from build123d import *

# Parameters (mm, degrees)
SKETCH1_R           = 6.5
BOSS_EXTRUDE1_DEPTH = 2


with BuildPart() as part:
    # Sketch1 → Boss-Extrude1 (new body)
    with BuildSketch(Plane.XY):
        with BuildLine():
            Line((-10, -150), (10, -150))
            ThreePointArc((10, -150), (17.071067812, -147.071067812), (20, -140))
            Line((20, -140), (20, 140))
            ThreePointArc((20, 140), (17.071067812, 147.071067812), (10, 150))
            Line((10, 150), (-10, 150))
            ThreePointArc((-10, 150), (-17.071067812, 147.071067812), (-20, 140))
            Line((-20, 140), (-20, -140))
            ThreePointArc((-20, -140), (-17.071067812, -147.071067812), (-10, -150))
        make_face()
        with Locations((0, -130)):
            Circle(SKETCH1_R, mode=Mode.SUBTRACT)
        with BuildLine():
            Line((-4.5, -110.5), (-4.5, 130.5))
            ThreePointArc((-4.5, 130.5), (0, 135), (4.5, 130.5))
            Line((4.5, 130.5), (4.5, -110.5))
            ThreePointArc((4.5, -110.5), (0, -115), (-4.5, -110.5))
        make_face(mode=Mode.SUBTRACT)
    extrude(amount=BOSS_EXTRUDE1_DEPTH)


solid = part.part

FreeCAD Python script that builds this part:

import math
import FreeCAD as App
import Part
import Sketcher
Q = App.Units.Quantity

doc = App.newDocument("Part")
body = doc.addObject("PartDesign::Body", "Body")

# Sketch on XY plane
sketch1 = body.newObject("Sketcher::SketchObject", "Sketch")
sketch1.AttachmentSupport = (doc.getObject("XY_Plane"), [""])
sketch1.MapMode = "FlatFace"
sketch1.addGeometry(Part.LineSegment(App.Vector(-10, -150, 0), App.Vector(10, -150, 0)), False)
sketch1.addGeometry(Part.ArcOfCircle(Part.Circle(App.Vector(10, -140, 0), App.Vector(0, 0, 1), 10), math.radians(-90), math.radians(0)), False)
sketch1.addGeometry(Part.LineSegment(App.Vector(20, -140, 0), App.Vector(20, 140, 0)), False)
sketch1.addGeometry(Part.ArcOfCircle(Part.Circle(App.Vector(10, 140, 0), App.Vector(0, 0, 1), 10), math.radians(0), math.radians(90)), False)
sketch1.addGeometry(Part.LineSegment(App.Vector(10, 150, 0), App.Vector(-10, 150, 0)), False)
sketch1.addGeometry(Part.ArcOfCircle(Part.Circle(App.Vector(-10, 140, 0), App.Vector(0, 0, 1), 10), math.radians(90), math.radians(180)), False)
sketch1.addGeometry(Part.LineSegment(App.Vector(-20, 140, 0), App.Vector(-20, -140, 0)), False)
sketch1.addGeometry(Part.ArcOfCircle(Part.Circle(App.Vector(-10, -140, 0), App.Vector(0, 0, 1), 10), math.radians(180), math.radians(270)), False)
sketch1.addGeometry(Part.Circle(App.Vector(0, -130, 0), App.Vector(0, 0, 1), 6.5), False)
sketch1.addGeometry(Part.ArcOfCircle(Part.Circle(App.Vector(0, -110.5, 0), App.Vector(0, 0, 1), 4.5), math.radians(180), math.radians(360)), False)
sketch1.addGeometry(Part.LineSegment(App.Vector(-4.5, -110.5, 0), App.Vector(-4.5, 130.5, 0)), False)
sketch1.addGeometry(Part.ArcOfCircle(Part.Circle(App.Vector(0, 130.5, 0), App.Vector(0, 0, 1), 4.5), math.radians(0), math.radians(180)), False)
sketch1.addGeometry(Part.LineSegment(App.Vector(4.5, 130.5, 0), App.Vector(4.5, -110.5, 0)), False)
sketch1.addConstraint(Sketcher.Constraint("Tangent", 0, 2, 1, 1))
sketch1.addConstraint(Sketcher.Constraint("Tangent", 1, 2, 2, 1))
sketch1.addConstraint(Sketcher.Constraint("Tangent", 2, 2, 3, 1))
sketch1.addConstraint(Sketcher.Constraint("Tangent", 3, 2, 4, 1))
sketch1.addConstraint(Sketcher.Constraint("Tangent", 4, 2, 5, 1))
sketch1.addConstraint(Sketcher.Constraint("Tangent", 5, 2, 6, 1))
sketch1.addConstraint(Sketcher.Constraint("Tangent", 6, 2, 7, 1))
sketch1.addConstraint(Sketcher.Constraint("Tangent", 7, 2, 0, 1))
sketch1.addConstraint(Sketcher.Constraint("Tangent", 9, 1, 10, 1))
sketch1.addConstraint(Sketcher.Constraint("Tangent", 10, 2, 11, 2))
sketch1.addConstraint(Sketcher.Constraint("Tangent", 11, 1, 12, 1))
sketch1.addConstraint(Sketcher.Constraint("Tangent", 12, 2, 9, 2))
sketch1.addConstraint(Sketcher.Constraint("Horizontal", 0))
sketch1.addConstraint(Sketcher.Constraint("Vertical", 2))
sketch1.addConstraint(Sketcher.Constraint("Horizontal", 4))
sketch1.addConstraint(Sketcher.Constraint("Vertical", 6))
sketch1.addConstraint(Sketcher.Constraint("Vertical", 10))
sketch1.addConstraint(Sketcher.Constraint("Vertical", 12))
sketch1.addConstraint(Sketcher.Constraint("Equal", 1, 3))
sketch1.addConstraint(Sketcher.Constraint("Equal", 3, 5))
sketch1.addConstraint(Sketcher.Constraint("Equal", 5, 7))
sketch1.addConstraint(Sketcher.Constraint("Symmetric", 1, 3, 5, 3, -1, 1))
sketch1.addConstraint(Sketcher.Constraint("PointOnObject", 8, 3, -2))
sketch1.addConstraint(Sketcher.Constraint("PointOnObject", 9, 3, -2))
sketch1.addConstraint(Sketcher.Constraint("Diameter", 8, Q("13 mm")))
sketch1.addConstraint(Sketcher.Constraint("Radius", 1, Q("10 mm")))
sketch1.addConstraint(Sketcher.Constraint("Radius", 9, Q("4.5 mm")))
sketch1.addConstraint(Sketcher.Constraint("DistanceX", 0, 1, 0, 2, Q("20 mm")))
sketch1.addConstraint(Sketcher.Constraint("DistanceY", 2, 1, 2, 2, Q("280 mm")))
sketch1.addConstraint(Sketcher.Constraint("DistanceY", 10, 1, 10, 2, Q("241 mm")))
sketch1.addConstraint(Sketcher.Constraint("DistanceY", 8, 3, -1, 1, Q("130 mm")))
sketch1.addConstraint(Sketcher.Constraint("DistanceY", 9, 3, -1, 1, Q("110.5 mm")))
pad1 = body.newObject("PartDesign::Pad", "Pad")
pad1.Profile = sketch1
pad1.Length = 2

doc.recompute()
